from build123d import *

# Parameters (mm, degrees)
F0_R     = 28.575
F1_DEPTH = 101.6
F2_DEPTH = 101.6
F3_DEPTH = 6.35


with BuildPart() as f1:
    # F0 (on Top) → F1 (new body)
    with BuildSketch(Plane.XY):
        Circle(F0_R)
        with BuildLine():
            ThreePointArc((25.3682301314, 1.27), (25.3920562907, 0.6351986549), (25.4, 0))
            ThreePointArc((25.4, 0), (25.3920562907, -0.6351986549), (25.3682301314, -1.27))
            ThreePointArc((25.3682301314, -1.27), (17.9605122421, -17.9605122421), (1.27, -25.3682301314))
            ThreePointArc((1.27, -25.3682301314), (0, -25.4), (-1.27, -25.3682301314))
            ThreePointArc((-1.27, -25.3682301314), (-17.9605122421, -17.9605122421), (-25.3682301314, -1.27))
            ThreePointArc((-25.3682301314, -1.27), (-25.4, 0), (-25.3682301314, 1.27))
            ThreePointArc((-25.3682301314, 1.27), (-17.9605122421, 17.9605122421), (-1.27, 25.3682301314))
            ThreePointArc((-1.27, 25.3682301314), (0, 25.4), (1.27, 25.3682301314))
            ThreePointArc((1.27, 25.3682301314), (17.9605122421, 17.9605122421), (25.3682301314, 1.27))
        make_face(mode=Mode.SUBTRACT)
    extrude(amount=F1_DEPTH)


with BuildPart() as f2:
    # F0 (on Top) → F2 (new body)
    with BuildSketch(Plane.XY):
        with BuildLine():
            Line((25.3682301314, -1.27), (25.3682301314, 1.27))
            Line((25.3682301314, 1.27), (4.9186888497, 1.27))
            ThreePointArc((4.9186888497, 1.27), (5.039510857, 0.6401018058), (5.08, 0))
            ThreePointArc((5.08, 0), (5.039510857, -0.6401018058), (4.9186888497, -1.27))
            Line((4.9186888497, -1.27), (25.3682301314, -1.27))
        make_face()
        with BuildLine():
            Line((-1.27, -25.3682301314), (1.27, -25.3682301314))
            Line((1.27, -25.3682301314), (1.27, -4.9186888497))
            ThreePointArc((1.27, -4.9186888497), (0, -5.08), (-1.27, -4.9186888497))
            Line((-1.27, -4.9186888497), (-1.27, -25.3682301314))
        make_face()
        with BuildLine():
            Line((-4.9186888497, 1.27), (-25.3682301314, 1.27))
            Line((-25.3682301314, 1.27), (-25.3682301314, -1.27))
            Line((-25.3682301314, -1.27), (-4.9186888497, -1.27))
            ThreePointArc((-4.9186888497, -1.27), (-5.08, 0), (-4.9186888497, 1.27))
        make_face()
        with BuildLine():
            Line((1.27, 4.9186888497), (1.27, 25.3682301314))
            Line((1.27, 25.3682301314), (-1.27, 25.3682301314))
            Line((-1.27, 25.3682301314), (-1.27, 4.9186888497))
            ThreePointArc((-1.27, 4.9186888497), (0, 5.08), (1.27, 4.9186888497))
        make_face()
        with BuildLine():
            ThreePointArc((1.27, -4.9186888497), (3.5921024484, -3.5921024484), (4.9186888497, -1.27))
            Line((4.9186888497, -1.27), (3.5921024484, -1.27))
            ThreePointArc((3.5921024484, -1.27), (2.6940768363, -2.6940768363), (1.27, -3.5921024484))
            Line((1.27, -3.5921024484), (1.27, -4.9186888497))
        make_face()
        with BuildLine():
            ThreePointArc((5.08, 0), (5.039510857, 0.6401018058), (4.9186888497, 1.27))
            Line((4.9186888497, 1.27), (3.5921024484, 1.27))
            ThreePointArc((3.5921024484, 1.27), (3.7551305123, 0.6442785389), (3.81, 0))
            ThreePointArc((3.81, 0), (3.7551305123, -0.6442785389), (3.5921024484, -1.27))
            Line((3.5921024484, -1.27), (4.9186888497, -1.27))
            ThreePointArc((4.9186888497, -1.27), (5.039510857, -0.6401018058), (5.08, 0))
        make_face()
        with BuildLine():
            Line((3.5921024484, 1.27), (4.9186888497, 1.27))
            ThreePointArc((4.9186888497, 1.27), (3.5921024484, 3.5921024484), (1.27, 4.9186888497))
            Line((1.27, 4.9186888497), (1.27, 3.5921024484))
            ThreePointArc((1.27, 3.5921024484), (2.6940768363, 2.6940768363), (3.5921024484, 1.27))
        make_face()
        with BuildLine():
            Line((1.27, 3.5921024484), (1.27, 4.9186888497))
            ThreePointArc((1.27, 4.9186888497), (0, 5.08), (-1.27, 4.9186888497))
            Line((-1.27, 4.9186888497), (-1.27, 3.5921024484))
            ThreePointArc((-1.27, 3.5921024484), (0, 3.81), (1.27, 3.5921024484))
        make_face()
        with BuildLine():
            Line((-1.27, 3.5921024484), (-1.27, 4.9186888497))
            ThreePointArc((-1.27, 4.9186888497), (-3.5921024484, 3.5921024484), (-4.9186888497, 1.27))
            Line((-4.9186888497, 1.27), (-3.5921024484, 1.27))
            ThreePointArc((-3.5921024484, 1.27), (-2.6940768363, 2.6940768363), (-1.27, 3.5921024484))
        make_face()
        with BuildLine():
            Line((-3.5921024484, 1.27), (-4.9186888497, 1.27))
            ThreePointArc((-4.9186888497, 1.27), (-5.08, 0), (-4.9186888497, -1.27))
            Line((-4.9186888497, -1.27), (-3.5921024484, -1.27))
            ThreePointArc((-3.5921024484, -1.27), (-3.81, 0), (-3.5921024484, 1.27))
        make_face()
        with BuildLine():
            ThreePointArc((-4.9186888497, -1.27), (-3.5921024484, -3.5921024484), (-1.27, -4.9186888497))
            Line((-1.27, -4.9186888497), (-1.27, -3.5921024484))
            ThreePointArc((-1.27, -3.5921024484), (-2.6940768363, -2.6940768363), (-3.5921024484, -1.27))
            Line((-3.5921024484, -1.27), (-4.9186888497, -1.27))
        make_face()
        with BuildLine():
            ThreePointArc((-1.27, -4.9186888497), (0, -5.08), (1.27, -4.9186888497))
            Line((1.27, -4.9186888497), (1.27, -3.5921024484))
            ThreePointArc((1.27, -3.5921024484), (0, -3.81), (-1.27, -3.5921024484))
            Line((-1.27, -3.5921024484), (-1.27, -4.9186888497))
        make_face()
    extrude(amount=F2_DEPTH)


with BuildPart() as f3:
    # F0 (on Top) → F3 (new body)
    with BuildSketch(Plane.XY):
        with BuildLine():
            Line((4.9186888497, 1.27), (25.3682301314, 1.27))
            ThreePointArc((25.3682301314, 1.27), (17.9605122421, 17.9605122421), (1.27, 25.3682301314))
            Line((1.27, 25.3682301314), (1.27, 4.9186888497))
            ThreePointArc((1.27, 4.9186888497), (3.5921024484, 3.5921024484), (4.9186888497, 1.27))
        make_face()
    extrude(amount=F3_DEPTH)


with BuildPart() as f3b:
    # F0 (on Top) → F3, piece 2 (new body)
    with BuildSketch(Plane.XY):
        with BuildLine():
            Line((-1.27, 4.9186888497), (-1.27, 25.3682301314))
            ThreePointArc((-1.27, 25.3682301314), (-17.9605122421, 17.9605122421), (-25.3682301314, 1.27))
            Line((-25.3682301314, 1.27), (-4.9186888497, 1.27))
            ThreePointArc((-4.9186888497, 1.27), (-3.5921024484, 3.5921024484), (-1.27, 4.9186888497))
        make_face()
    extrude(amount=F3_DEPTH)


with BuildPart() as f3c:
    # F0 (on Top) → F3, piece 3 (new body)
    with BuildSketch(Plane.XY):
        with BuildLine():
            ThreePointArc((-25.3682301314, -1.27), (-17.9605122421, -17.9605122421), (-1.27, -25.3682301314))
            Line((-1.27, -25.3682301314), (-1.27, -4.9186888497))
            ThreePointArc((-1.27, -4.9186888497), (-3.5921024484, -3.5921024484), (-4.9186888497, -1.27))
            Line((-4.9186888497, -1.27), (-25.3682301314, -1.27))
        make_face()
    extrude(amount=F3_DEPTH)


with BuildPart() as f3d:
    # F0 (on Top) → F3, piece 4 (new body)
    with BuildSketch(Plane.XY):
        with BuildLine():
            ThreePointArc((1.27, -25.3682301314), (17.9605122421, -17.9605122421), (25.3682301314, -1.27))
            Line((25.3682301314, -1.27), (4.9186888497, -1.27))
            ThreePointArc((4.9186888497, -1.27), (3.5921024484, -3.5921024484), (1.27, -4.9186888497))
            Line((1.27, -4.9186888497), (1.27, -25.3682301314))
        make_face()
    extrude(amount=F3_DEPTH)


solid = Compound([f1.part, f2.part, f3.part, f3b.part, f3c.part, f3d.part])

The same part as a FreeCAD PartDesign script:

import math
import FreeCAD as App
import Part
import Sketcher
Q = App.Units.Quantity

doc = App.newDocument("Part")
body = doc.addObject("PartDesign::Body", "Body")

# Sketch on XY plane
sketch1 = body.newObject("Sketcher::SketchObject", "Sketch")
sketch1.AttachmentSupport = (doc.getObject("XY_Plane"), [""])
sketch1.MapMode = "FlatFace"
sketch1.addGeometry([
    Part.Circle(App.Vector(0, 0, 0), App.Vector(0, 0, 1), 28.575),  # 0
    Part.ArcOfCircle(Part.Circle(App.Vector(0, 0, 0), App.Vector(0, 0, 1), 25.4), math.radians(2.865984), math.radians(87.134016)),  # 1
    Part.ArcOfCircle(Part.Circle(App.Vector(0, 0, 0), App.Vector(0, 0, 1), 25.4), math.radians(0), math.radians(2.865984)),  # 2
    Part.ArcOfCircle(Part.Circle(App.Vector(0, 0, 0), App.Vector(0, 0, 1), 25.4), math.radians(-2.865984), math.radians(0)),  # 3
    Part.ArcOfCircle(Part.Circle(App.Vector(0, 0, 0), App.Vector(0, 0, 1), 25.4), math.radians(-87.134016), math.radians(-2.865984)),  # 4
    Part.ArcOfCircle(Part.Circle(App.Vector(0, 0, 0), App.Vector(0, 0, 1), 25.4), math.radians(-92.865984), math.radians(-87.134016)),  # 5
    Part.ArcOfCircle(Part.Circle(App.Vector(0, 0, 0), App.Vector(0, 0, 1), 25.4), math.radians(-177.134016), math.radians(-92.865984)),  # 6
    Part.ArcOfCircle(Part.Circle(App.Vector(0, 0, 0), App.Vector(0, 0, 1), 25.4), math.radians(177.134016), math.radians(182.865984)),  # 7
    Part.ArcOfCircle(Part.Circle(App.Vector(0, 0, 0), App.Vector(0, 0, 1), 25.4), math.radians(92.865984), math.radians(177.134016)),  # 8
    Part.ArcOfCircle(Part.Circle(App.Vector(0, 0, 0), App.Vector(0, 0, 1), 25.4), math.radians(87.134016), math.radians(92.865984)),  # 9
], False)
sketch1.addConstraint([
    Sketcher.Constraint("Tangent", 1, 1, 2, 2),
    Sketcher.Constraint("Tangent", 2, 1, 3, 2),
    Sketcher.Constraint("Tangent", 3, 1, 4, 2),
    Sketcher.Constraint("Tangent", 4, 1, 5, 2),
    Sketcher.Constraint("Tangent", 5, 1, 6, 2),
    Sketcher.Constraint("Tangent", 6, 1, 7, 2),
    Sketcher.Constraint("Tangent", 7, 1, 8, 2),
    Sketcher.Constraint("Tangent", 8, 1, 9, 2),
    Sketcher.Constraint("Tangent", 9, 1, 1, 2),
    Sketcher.Constraint("Coincident", 0, 3, -1, 1),
    Sketcher.Constraint("Coincident", 1, 3, -1, 1),
    Sketcher.Constraint("Coincident", 3, 3, -1, 1),
    Sketcher.Constraint("Coincident", 5, 3, -1, 1),
    Sketcher.Constraint("Coincident", 7, 3, -1, 1),
    Sketcher.Constraint("PointOnObject", 2, 1, -1),
    Sketcher.Constraint("Horizontal", 4, 1, 5, 1),
    Sketcher.Constraint("Horizontal", 3, 1, 6, 1),
    Sketcher.Constraint("Horizontal", 1, 1, 7, 1),
    Sketcher.Constraint("Horizontal", 8, 1, 9, 1),
    Sketcher.Constraint("Vertical", 1, 1, 3, 1),
    Sketcher.Constraint("Vertical", 5, 1, 8, 1),
    Sketcher.Constraint("Radius", 1, Q("1 in")),
    Sketcher.Constraint("Diameter", 0, Q("2.25 in")),
    Sketcher.Constraint("DistanceY", 3, 1, 1, 1, Q("0.1 in")),
    Sketcher.Constraint("DistanceX", 5, 1, 4, 1, Q("0.1 in")),
])
pad1 = body.newObject("PartDesign::Pad", "Pad")
pad1.Profile = sketch1
pad1.Length = Q("4 in")
body2 = doc.addObject("PartDesign::Body", "Body001")

# Sketch on XY plane
sketch2 = body2.newObject("Sketcher::SketchObject", "Sketch001")
sketch2.AttachmentSupport = (doc.getObject("XY_Plane001"), [""])
sketch2.MapMode = "FlatFace"
sketch2.addGeometry([
    Part.LineSegment(App.Vector(25.36823, -1.27, 0), App.Vector(25.36823, 1.27, 0)),  # 0
    Part.LineSegment(App.Vector(25.36823, 1.27, 0), App.Vector(4.918689, 1.27, 0)),  # 1
    Part.ArcOfCircle(Part.Circle(App.Vector(0, 0, 0), App.Vector(0, 0, 1), 5.08), math.radians(14.477512), math.radians(75.522488)),  # 2
    Part.LineSegment(App.Vector(1.27, 4.918689, 0), App.Vector(1.27, 25.36823, 0)),  # 3
    Part.LineSegment(App.Vector(1.27, 25.36823, 0), App.Vector(-1.27, 25.36823, 0)),  # 4
    Part.LineSegment(App.Vector(-1.27, 25.36823, 0), App.Vector(-1.27, 4.918689, 0)),  # 5
    Part.ArcOfCircle(Part.Circle(App.Vector(0, 0, 0), App.Vector(0, 0, 1), 5.08), math.radians(104.477512), math.radians(165.522488)),  # 6
    Part.LineSegment(App.Vector(-4.918689, 1.27, 0), App.Vector(-25.36823, 1.27, 0)),  # 7
    Part.LineSegment(App.Vector(-25.36823, 1.27, 0), App.Vector(-25.36823, -1.27, 0)),  # 8
    Part.LineSegment(App.Vector(-25.36823, -1.27, 0), App.Vector(-4.918689, -1.27, 0)),  # 9
    Part.ArcOfCircle(Part.Circle(App.Vector(0, 0, 0), App.Vector(0, 0, 1), 5.08), math.radians(-165.522488), math.radians(-104.477512)),  # 10
    Part.LineSegment(App.Vector(-1.27, -4.918689, 0), App.Vector(-1.27, -25.36823, 0)),  # 11
    Part.LineSegment(App.Vector(-1.27, -25.36823, 0), App.Vector(1.27, -25.36823, 0)),  # 12
    Part.LineSegment(App.Vector(1.27, -25.36823, 0), App.Vector(1.27, -4.918689, 0)),  # 13
    Part.ArcOfCircle(Part.Circle(App.Vector(0, 0, 0), App.Vector(0, 0, 1), 5.08), math.radians(-75.522488), math.radians(-14.477512)),  # 14
    Part.LineSegment(App.Vector(4.918689, -1.27, 0), App.Vector(25.36823, -1.27, 0)),  # 15
    Part.ArcOfCircle(Part.Circle(App.Vector(0, 0, 0), App.Vector(0, 0, 1), 3.81), math.radians(-160.528779), math.radians(-109.471221)),  # 16
    Part.ArcOfCircle(Part.Circle(App.Vector(0, 0, 0), App.Vector(0, 0, 1), 3.81), math.radians(160.528779), math.radians(199.471221)),  # 17
    Part.ArcOfCircle(Part.Circle(App.Vector(0, 0, 0), App.Vector(0, 0, 1), 3.81), math.radians(109.471221), math.radians(160.528779)),  # 18
    Part.ArcOfCircle(Part.Circle(App.Vector(0, 0, 0), App.Vector(0, 0, 1), 3.81), math.radians(70.528779), math.radians(109.471221)),  # 19
    Part.ArcOfCircle(Part.Circle(App.Vector(0, 0, 0), App.Vector(0, 0, 1), 3.81), math.radians(19.471221), math.radians(70.528779)),  # 20
    Part.ArcOfCircle(Part.Circle(App.Vector(0, 0, 0), App.Vector(0, 0, 1), 3.81), math.radians(0), math.radians(19.471221)),  # 21
    Part.ArcOfCircle(Part.Circle(App.Vector(0, 0, 0), App.Vector(0, 0, 1), 3.81), math.radians(-19.471221), math.radians(0)),  # 22
    Part.ArcOfCircle(Part.Circle(App.Vector(0, 0, 0), App.Vector(0, 0, 1), 3.81), math.radians(-70.528779), math.radians(-19.471221)),  # 23
    Part.ArcOfCircle(Part.Circle(App.Vector(0, 0, 0), App.Vector(0, 0, 1), 3.81), math.radians(-109.471221), math.radians(-70.528779)),  # 24
], False)
sketch2.addConstraint([
    Sketcher.Constraint("Coincident", 0, 2, 1, 1),
    Sketcher.Constraint("Coincident", 1, 2, 2, 1),
    Sketcher.Constraint("Coincident", 2, 2, 3, 1),
    Sketcher.Constraint("Coincident", 3, 2, 4, 1),
    Sketcher.Constraint("Coincident", 4, 2, 5, 1),
    Sketcher.Constraint("Coincident", 5, 2, 6, 1),
    Sketcher.Constraint("Coincident", 6, 2, 7, 1),
    Sketcher.Constraint("Coincident", 7, 2, 8, 1),
    Sketcher.Constraint("Coincident", 8, 2, 9, 1),
    Sketcher.Constraint("Coincident", 9, 2, 10, 1),
    Sketcher.Constraint("Coincident", 10, 2, 11, 1),
    Sketcher.Constraint("Coincident", 11, 2, 12, 1),
    Sketcher.Constraint("Coincident", 12, 2, 13, 1),
    Sketcher.Constraint("Coincident", 13, 2, 14, 1),
    Sketcher.Constraint("Coincident", 14, 2, 15, 1),
    Sketcher.Constraint("Coincident", 15, 2, 0, 1),
    Sketcher.Constraint("Tangent", 16, 1, 17, 2),
    Sketcher.Constraint("Tangent", 17, 1, 18, 2),
    Sketcher.Constraint("Tangent", 18, 1, 19, 2),
    Sketcher.Constraint("Tangent", 19, 1, 20, 2),
    Sketcher.Constraint("Tangent", 20, 1, 21, 2),
    Sketcher.Constraint("Tangent", 21, 1, 22, 2),
    Sketcher.Constraint("Tangent", 22, 1, 23, 2),
    Sketcher.Constraint("Tangent", 23, 1, 24, 2),
    Sketcher.Constraint("Tangent", 24, 1, 16, 2),
    Sketcher.Constraint("Vertical", 0),
    Sketcher.Constraint("Horizontal", 1),
    Sketcher.Constraint("Vertical", 3),
    Sketcher.Constraint("Horizontal", 4),
    Sketcher.Constraint("Vertical", 5),
    Sketcher.Constraint("Horizontal", 7),
    Sketcher.Constraint("Vertical", 8),
    Sketcher.Constraint("Horizontal", 9),
    Sketcher.Constraint("Vertical", 11),
    Sketcher.Constraint("Horizontal", 12),
    Sketcher.Constraint("Vertical", 13),
    Sketcher.Constraint("Horizontal", 15),
    Sketcher.Constraint("Coincident", 2, 3, -1, 1),
    Sketcher.Constraint("Coincident", 6, 3, -1, 1),
    Sketcher.Constraint("Coincident", 10, 3, -1, 1),
    Sketcher.Constraint("Coincident", 14, 3, -1, 1),
    Sketcher.Constraint("Coincident", 16, 3, -1, 1),
    Sketcher.Constraint("Coincident", 18, 3, -1, 1),
    Sketcher.Constraint("Coincident", 20, 3, -1, 1),
    Sketcher.Constraint("Coincident", 22, 3, -1, 1),
    Sketcher.Constraint("Equal", 2, 6),
    Sketcher.Constraint("Equal", 6, 10),
    Sketcher.Constraint("Equal", 10, 14),
    Sketcher.Constraint("Symmetric", 0, 2, 8, 2, -1, 1),
    Sketcher.Constraint("Symmetric", 3, 2, 11, 2, -1, 1),
    Sketcher.Constraint("PointOnObject", 21, 1, -1),
    Sketcher.Constraint("Horizontal", 2, 2, 5, 2),
    Sketcher.Constraint("Horizontal", 1, 2, 6, 2),
    Sketcher.Constraint("Horizontal", 10, 2, 13, 2),
    Sketcher.Constraint("Horizontal", 9, 2, 14, 2),
    Sketcher.Constraint("Horizontal", 15, 2, 16, 1),
    Sketcher.Constraint("Horizontal", 7, 2, 17, 1),
    Sketcher.Constraint("Horizontal", 18, 1, 19, 1),
    Sketcher.Constraint("Horizontal", 17, 1, 20, 1),
    Sketcher.Constraint("Horizontal", 16, 1, 22, 1),
    Sketcher.Constraint("Horizontal", 23, 1, 24, 1),
    Sketcher.Constraint("Vertical", 11, 2, 18, 1),
    Sketcher.Constraint("Vertical", 19, 1, 23, 1),
    Sketcher.Constraint("Equal", 12, 0),
    Sketcher.Constraint("Equal", 15, 3),
    Sketcher.Constraint("Radius", 2, Q("0.2 in")),
    Sketcher.Constraint("Radius", 16, Q("0.15 in")),
    Sketcher.Constraint("DistanceX", 4, 2, 4, 1, Q("0.1 in")),
    Sketcher.Constraint("DistanceX", 1, 2, 1, 1, Q("0.8051001 in")),
])
pad2 = body2.newObject("PartDesign::Pad", "Pad001")
pad2.Profile = sketch2
pad2.Length = Q("4 in")
body3 = doc.addObject("PartDesign::Body", "Body002")

# Sketch on XY plane
sketch3 = body3.newObject("Sketcher::SketchObject", "Sketch002")
sketch3.AttachmentSupport = (doc.getObject("XY_Plane002"), [""])
sketch3.MapMode = "FlatFace"
sketch3.addGeometry([
    Part.LineSegment(App.Vector(4.918689, 1.27, 0), App.Vector(25.36823, 1.27, 0)),
    Part.ArcOfCircle(Part.Circle(App.Vector(0, 0, 0), App.Vector(0, 0, 1), 25.4), math.radians(2.865984), math.radians(87.134016)),
    Part.LineSegment(App.Vector(1.27, 25.36823, 0), App.Vector(1.27, 4.918689, 0)),
    Part.ArcOfCircle(Part.Circle(App.Vector(0, 0, 0), App.Vector(0, 0, 1), 5.08), math.radians(14.477512), math.radians(75.522488)),
], False)
sketch3.addConstraint([
    Sketcher.Constraint("Coincident", 0, 2, 1, 1),
    Sketcher.Constraint("Coincident", 1, 2, 2, 1),
    Sketcher.Constraint("Coincident", 2, 2, 3, 2),
    Sketcher.Constraint("Coincident", 3, 1, 0, 1),
    Sketcher.Constraint("Horizontal", 0),
    Sketcher.Constraint("Vertical", 2),
    Sketcher.Constraint("Coincident", 1, 3, -1, 1),
    Sketcher.Constraint("Coincident", 3, 3, -1, 1),
    Sketcher.Constraint("Equal", 0, 2),
    Sketcher.Constraint("Radius", 1, Q("1 in")),
    Sketcher.Constraint("Radius", 3, Q("0.2 in")),
    Sketcher.Constraint("DistanceY", -1, 1, 0, 2, Q("0.05 in")),
])
pad3 = body3.newObject("PartDesign::Pad", "Pad002")
pad3.Profile = sketch3
pad3.Length = Q("0.25 in")
body4 = doc.addObject("PartDesign::Body", "Body003")

# Sketch on XY plane
sketch4 = body4.newObject("Sketcher::SketchObject", "Sketch003")
sketch4.AttachmentSupport = (doc.getObject("XY_Plane003"), [""])
sketch4.MapMode = "FlatFace"
sketch4.addGeometry([
    Part.LineSegment(App.Vector(-1.27, 4.918689, 0), App.Vector(-1.27, 25.36823, 0)),
    Part.ArcOfCircle(Part.Circle(App.Vector(0, 0, 0), App.Vector(0, 0, 1), 25.4), math.radians(92.865984), math.radians(177.134016)),
    Part.LineSegment(App.Vector(-25.36823, 1.27, 0), App.Vector(-4.918689, 1.27, 0)),
    Part.ArcOfCircle(Part.Circle(App.Vector(0, 0, 0), App.Vector(0, 0, 1), 5.08), math.radians(104.477512), math.radians(165.522488)),
], False)
sketch4.addConstraint([
    Sketcher.Constraint("Coincident", 0, 2, 1, 1),
    Sketcher.Constraint("Coincident", 1, 2, 2, 1),
    Sketcher.Constraint("Coincident", 2, 2, 3, 2),
    Sketcher.Constraint("Coincident", 3, 1, 0, 1),
    Sketcher.Constraint("Vertical", 0),
    Sketcher.Constraint("Horizontal", 2),
    Sketcher.Constraint("Coincident", 1, 3, -1, 1),
    Sketcher.Constraint("Coincident", 3, 3, -1, 1),
    Sketcher.Constraint("Equal", 2, 0),
    Sketcher.Constraint("Radius", 1, Q("1 in")),
    Sketcher.Constraint("Radius", 3, Q("0.2 in")),
    Sketcher.Constraint("DistanceX", 0, 2, -1, 1, Q("0.05 in")),
])
pad4 = body4.newObject("PartDesign::Pad", "Pad003")
pad4.Profile = sketch4
pad4.Length = Q("0.25 in")
body5 = doc.addObject("PartDesign::Body", "Body004")

# Sketch on XY plane
sketch5 = body5.newObject("Sketcher::SketchObject", "Sketch004")
sketch5.AttachmentSupport = (doc.getObject("XY_Plane004"), [""])
sketch5.MapMode = "FlatFace"
sketch5.addGeometry([
    Part.ArcOfCircle(Part.Circle(App.Vector(0, 0, 0), App.Vector(0, 0, 1), 25.4), math.radians(-177.134016), math.radians(-92.865984)),
    Part.LineSegment(App.Vector(-1.27, -25.36823, 0), App.Vector(-1.27, -4.918689, 0)),
    Part.ArcOfCircle(Part.Circle(App.Vector(0, 0, 0), App.Vector(0, 0, 1), 5.08), math.radians(-165.522488), math.radians(-104.477512)),
    Part.LineSegment(App.Vector(-4.918689, -1.27, 0), App.Vector(-25.36823, -1.27, 0)),
], False)
sketch5.addConstraint([
    Sketcher.Constraint("Coincident", 0, 2, 1, 1),
    Sketcher.Constraint("Coincident", 1, 2, 2, 2),
    Sketcher.Constraint("Coincident", 2, 1, 3, 1),
    Sketcher.Constraint("Coincident", 3, 2, 0, 1),
    Sketcher.Constraint("Vertical", 1),
    Sketcher.Constraint("Horizontal", 3),
    Sketcher.Constraint("Coincident", 0, 3, -1, 1),
    Sketcher.Constraint("Coincident", 2, 3, -1, 1),
    Sketcher.Constraint("Equal", 3, 1),
    Sketcher.Constraint("Radius", 0, Q("1 in")),
    Sketcher.Constraint("Radius", 2, Q("0.2 in")),
    Sketcher.Constraint("DistanceX", 0, 2, -1, 1, Q("0.05 in")),
])
pad5 = body5.newObject("PartDesign::Pad", "Pad004")
pad5.Profile = sketch5
pad5.Length = Q("0.25 in")
body6 = doc.addObject("PartDesign::Body", "Body005")

# Sketch on XY plane
sketch6 = body6.newObject("Sketcher::SketchObject", "Sketch005")
sketch6.AttachmentSupport = (doc.getObject("XY_Plane005"), [""])
sketch6.MapMode = "FlatFace"
sketch6.addGeometry([
    Part.ArcOfCircle(Part.Circle(App.Vector(0, 0, 0), App.Vector(0, 0, 1), 25.4), math.radians(-87.134016), math.radians(-2.865984)),
    Part.LineSegment(App.Vector(25.36823, -1.27, 0), App.Vector(4.918689, -1.27, 0)),
    Part.ArcOfCircle(Part.Circle(App.Vector(0, 0, 0), App.Vector(0, 0, 1), 5.08), math.radians(-75.522488), math.radians(-14.477512)),
    Part.LineSegment(App.Vector(1.27, -4.918689, 0), App.Vector(1.27, -25.36823, 0)),
], False)
sketch6.addConstraint([
    Sketcher.Constraint("Coincident", 0, 2, 1, 1),
    Sketcher.Constraint("Coincident", 1, 2, 2, 2),
    Sketcher.Constraint("Coincident", 2, 1, 3, 1),
    Sketcher.Constraint("Coincident", 3, 2, 0, 1),
    Sketcher.Constraint("Horizontal", 1),
    Sketcher.Constraint("Vertical", 3),
    Sketcher.Constraint("Coincident", 0, 3, -1, 1),
    Sketcher.Constraint("Coincident", 2, 3, -1, 1),
    Sketcher.Constraint("Equal", 1, 3),
    Sketcher.Constraint("Radius", 0, Q("1 in")),
    Sketcher.Constraint("Radius", 2, Q("0.2 in")),
    Sketcher.Constraint("DistanceY", 0, 2, -1, 1, Q("0.05 in")),
])
pad6 = body6.newObject("PartDesign::Pad", "Pad005")
pad6.Profile = sketch6
pad6.Length = Q("0.25 in")

doc.recompute()
